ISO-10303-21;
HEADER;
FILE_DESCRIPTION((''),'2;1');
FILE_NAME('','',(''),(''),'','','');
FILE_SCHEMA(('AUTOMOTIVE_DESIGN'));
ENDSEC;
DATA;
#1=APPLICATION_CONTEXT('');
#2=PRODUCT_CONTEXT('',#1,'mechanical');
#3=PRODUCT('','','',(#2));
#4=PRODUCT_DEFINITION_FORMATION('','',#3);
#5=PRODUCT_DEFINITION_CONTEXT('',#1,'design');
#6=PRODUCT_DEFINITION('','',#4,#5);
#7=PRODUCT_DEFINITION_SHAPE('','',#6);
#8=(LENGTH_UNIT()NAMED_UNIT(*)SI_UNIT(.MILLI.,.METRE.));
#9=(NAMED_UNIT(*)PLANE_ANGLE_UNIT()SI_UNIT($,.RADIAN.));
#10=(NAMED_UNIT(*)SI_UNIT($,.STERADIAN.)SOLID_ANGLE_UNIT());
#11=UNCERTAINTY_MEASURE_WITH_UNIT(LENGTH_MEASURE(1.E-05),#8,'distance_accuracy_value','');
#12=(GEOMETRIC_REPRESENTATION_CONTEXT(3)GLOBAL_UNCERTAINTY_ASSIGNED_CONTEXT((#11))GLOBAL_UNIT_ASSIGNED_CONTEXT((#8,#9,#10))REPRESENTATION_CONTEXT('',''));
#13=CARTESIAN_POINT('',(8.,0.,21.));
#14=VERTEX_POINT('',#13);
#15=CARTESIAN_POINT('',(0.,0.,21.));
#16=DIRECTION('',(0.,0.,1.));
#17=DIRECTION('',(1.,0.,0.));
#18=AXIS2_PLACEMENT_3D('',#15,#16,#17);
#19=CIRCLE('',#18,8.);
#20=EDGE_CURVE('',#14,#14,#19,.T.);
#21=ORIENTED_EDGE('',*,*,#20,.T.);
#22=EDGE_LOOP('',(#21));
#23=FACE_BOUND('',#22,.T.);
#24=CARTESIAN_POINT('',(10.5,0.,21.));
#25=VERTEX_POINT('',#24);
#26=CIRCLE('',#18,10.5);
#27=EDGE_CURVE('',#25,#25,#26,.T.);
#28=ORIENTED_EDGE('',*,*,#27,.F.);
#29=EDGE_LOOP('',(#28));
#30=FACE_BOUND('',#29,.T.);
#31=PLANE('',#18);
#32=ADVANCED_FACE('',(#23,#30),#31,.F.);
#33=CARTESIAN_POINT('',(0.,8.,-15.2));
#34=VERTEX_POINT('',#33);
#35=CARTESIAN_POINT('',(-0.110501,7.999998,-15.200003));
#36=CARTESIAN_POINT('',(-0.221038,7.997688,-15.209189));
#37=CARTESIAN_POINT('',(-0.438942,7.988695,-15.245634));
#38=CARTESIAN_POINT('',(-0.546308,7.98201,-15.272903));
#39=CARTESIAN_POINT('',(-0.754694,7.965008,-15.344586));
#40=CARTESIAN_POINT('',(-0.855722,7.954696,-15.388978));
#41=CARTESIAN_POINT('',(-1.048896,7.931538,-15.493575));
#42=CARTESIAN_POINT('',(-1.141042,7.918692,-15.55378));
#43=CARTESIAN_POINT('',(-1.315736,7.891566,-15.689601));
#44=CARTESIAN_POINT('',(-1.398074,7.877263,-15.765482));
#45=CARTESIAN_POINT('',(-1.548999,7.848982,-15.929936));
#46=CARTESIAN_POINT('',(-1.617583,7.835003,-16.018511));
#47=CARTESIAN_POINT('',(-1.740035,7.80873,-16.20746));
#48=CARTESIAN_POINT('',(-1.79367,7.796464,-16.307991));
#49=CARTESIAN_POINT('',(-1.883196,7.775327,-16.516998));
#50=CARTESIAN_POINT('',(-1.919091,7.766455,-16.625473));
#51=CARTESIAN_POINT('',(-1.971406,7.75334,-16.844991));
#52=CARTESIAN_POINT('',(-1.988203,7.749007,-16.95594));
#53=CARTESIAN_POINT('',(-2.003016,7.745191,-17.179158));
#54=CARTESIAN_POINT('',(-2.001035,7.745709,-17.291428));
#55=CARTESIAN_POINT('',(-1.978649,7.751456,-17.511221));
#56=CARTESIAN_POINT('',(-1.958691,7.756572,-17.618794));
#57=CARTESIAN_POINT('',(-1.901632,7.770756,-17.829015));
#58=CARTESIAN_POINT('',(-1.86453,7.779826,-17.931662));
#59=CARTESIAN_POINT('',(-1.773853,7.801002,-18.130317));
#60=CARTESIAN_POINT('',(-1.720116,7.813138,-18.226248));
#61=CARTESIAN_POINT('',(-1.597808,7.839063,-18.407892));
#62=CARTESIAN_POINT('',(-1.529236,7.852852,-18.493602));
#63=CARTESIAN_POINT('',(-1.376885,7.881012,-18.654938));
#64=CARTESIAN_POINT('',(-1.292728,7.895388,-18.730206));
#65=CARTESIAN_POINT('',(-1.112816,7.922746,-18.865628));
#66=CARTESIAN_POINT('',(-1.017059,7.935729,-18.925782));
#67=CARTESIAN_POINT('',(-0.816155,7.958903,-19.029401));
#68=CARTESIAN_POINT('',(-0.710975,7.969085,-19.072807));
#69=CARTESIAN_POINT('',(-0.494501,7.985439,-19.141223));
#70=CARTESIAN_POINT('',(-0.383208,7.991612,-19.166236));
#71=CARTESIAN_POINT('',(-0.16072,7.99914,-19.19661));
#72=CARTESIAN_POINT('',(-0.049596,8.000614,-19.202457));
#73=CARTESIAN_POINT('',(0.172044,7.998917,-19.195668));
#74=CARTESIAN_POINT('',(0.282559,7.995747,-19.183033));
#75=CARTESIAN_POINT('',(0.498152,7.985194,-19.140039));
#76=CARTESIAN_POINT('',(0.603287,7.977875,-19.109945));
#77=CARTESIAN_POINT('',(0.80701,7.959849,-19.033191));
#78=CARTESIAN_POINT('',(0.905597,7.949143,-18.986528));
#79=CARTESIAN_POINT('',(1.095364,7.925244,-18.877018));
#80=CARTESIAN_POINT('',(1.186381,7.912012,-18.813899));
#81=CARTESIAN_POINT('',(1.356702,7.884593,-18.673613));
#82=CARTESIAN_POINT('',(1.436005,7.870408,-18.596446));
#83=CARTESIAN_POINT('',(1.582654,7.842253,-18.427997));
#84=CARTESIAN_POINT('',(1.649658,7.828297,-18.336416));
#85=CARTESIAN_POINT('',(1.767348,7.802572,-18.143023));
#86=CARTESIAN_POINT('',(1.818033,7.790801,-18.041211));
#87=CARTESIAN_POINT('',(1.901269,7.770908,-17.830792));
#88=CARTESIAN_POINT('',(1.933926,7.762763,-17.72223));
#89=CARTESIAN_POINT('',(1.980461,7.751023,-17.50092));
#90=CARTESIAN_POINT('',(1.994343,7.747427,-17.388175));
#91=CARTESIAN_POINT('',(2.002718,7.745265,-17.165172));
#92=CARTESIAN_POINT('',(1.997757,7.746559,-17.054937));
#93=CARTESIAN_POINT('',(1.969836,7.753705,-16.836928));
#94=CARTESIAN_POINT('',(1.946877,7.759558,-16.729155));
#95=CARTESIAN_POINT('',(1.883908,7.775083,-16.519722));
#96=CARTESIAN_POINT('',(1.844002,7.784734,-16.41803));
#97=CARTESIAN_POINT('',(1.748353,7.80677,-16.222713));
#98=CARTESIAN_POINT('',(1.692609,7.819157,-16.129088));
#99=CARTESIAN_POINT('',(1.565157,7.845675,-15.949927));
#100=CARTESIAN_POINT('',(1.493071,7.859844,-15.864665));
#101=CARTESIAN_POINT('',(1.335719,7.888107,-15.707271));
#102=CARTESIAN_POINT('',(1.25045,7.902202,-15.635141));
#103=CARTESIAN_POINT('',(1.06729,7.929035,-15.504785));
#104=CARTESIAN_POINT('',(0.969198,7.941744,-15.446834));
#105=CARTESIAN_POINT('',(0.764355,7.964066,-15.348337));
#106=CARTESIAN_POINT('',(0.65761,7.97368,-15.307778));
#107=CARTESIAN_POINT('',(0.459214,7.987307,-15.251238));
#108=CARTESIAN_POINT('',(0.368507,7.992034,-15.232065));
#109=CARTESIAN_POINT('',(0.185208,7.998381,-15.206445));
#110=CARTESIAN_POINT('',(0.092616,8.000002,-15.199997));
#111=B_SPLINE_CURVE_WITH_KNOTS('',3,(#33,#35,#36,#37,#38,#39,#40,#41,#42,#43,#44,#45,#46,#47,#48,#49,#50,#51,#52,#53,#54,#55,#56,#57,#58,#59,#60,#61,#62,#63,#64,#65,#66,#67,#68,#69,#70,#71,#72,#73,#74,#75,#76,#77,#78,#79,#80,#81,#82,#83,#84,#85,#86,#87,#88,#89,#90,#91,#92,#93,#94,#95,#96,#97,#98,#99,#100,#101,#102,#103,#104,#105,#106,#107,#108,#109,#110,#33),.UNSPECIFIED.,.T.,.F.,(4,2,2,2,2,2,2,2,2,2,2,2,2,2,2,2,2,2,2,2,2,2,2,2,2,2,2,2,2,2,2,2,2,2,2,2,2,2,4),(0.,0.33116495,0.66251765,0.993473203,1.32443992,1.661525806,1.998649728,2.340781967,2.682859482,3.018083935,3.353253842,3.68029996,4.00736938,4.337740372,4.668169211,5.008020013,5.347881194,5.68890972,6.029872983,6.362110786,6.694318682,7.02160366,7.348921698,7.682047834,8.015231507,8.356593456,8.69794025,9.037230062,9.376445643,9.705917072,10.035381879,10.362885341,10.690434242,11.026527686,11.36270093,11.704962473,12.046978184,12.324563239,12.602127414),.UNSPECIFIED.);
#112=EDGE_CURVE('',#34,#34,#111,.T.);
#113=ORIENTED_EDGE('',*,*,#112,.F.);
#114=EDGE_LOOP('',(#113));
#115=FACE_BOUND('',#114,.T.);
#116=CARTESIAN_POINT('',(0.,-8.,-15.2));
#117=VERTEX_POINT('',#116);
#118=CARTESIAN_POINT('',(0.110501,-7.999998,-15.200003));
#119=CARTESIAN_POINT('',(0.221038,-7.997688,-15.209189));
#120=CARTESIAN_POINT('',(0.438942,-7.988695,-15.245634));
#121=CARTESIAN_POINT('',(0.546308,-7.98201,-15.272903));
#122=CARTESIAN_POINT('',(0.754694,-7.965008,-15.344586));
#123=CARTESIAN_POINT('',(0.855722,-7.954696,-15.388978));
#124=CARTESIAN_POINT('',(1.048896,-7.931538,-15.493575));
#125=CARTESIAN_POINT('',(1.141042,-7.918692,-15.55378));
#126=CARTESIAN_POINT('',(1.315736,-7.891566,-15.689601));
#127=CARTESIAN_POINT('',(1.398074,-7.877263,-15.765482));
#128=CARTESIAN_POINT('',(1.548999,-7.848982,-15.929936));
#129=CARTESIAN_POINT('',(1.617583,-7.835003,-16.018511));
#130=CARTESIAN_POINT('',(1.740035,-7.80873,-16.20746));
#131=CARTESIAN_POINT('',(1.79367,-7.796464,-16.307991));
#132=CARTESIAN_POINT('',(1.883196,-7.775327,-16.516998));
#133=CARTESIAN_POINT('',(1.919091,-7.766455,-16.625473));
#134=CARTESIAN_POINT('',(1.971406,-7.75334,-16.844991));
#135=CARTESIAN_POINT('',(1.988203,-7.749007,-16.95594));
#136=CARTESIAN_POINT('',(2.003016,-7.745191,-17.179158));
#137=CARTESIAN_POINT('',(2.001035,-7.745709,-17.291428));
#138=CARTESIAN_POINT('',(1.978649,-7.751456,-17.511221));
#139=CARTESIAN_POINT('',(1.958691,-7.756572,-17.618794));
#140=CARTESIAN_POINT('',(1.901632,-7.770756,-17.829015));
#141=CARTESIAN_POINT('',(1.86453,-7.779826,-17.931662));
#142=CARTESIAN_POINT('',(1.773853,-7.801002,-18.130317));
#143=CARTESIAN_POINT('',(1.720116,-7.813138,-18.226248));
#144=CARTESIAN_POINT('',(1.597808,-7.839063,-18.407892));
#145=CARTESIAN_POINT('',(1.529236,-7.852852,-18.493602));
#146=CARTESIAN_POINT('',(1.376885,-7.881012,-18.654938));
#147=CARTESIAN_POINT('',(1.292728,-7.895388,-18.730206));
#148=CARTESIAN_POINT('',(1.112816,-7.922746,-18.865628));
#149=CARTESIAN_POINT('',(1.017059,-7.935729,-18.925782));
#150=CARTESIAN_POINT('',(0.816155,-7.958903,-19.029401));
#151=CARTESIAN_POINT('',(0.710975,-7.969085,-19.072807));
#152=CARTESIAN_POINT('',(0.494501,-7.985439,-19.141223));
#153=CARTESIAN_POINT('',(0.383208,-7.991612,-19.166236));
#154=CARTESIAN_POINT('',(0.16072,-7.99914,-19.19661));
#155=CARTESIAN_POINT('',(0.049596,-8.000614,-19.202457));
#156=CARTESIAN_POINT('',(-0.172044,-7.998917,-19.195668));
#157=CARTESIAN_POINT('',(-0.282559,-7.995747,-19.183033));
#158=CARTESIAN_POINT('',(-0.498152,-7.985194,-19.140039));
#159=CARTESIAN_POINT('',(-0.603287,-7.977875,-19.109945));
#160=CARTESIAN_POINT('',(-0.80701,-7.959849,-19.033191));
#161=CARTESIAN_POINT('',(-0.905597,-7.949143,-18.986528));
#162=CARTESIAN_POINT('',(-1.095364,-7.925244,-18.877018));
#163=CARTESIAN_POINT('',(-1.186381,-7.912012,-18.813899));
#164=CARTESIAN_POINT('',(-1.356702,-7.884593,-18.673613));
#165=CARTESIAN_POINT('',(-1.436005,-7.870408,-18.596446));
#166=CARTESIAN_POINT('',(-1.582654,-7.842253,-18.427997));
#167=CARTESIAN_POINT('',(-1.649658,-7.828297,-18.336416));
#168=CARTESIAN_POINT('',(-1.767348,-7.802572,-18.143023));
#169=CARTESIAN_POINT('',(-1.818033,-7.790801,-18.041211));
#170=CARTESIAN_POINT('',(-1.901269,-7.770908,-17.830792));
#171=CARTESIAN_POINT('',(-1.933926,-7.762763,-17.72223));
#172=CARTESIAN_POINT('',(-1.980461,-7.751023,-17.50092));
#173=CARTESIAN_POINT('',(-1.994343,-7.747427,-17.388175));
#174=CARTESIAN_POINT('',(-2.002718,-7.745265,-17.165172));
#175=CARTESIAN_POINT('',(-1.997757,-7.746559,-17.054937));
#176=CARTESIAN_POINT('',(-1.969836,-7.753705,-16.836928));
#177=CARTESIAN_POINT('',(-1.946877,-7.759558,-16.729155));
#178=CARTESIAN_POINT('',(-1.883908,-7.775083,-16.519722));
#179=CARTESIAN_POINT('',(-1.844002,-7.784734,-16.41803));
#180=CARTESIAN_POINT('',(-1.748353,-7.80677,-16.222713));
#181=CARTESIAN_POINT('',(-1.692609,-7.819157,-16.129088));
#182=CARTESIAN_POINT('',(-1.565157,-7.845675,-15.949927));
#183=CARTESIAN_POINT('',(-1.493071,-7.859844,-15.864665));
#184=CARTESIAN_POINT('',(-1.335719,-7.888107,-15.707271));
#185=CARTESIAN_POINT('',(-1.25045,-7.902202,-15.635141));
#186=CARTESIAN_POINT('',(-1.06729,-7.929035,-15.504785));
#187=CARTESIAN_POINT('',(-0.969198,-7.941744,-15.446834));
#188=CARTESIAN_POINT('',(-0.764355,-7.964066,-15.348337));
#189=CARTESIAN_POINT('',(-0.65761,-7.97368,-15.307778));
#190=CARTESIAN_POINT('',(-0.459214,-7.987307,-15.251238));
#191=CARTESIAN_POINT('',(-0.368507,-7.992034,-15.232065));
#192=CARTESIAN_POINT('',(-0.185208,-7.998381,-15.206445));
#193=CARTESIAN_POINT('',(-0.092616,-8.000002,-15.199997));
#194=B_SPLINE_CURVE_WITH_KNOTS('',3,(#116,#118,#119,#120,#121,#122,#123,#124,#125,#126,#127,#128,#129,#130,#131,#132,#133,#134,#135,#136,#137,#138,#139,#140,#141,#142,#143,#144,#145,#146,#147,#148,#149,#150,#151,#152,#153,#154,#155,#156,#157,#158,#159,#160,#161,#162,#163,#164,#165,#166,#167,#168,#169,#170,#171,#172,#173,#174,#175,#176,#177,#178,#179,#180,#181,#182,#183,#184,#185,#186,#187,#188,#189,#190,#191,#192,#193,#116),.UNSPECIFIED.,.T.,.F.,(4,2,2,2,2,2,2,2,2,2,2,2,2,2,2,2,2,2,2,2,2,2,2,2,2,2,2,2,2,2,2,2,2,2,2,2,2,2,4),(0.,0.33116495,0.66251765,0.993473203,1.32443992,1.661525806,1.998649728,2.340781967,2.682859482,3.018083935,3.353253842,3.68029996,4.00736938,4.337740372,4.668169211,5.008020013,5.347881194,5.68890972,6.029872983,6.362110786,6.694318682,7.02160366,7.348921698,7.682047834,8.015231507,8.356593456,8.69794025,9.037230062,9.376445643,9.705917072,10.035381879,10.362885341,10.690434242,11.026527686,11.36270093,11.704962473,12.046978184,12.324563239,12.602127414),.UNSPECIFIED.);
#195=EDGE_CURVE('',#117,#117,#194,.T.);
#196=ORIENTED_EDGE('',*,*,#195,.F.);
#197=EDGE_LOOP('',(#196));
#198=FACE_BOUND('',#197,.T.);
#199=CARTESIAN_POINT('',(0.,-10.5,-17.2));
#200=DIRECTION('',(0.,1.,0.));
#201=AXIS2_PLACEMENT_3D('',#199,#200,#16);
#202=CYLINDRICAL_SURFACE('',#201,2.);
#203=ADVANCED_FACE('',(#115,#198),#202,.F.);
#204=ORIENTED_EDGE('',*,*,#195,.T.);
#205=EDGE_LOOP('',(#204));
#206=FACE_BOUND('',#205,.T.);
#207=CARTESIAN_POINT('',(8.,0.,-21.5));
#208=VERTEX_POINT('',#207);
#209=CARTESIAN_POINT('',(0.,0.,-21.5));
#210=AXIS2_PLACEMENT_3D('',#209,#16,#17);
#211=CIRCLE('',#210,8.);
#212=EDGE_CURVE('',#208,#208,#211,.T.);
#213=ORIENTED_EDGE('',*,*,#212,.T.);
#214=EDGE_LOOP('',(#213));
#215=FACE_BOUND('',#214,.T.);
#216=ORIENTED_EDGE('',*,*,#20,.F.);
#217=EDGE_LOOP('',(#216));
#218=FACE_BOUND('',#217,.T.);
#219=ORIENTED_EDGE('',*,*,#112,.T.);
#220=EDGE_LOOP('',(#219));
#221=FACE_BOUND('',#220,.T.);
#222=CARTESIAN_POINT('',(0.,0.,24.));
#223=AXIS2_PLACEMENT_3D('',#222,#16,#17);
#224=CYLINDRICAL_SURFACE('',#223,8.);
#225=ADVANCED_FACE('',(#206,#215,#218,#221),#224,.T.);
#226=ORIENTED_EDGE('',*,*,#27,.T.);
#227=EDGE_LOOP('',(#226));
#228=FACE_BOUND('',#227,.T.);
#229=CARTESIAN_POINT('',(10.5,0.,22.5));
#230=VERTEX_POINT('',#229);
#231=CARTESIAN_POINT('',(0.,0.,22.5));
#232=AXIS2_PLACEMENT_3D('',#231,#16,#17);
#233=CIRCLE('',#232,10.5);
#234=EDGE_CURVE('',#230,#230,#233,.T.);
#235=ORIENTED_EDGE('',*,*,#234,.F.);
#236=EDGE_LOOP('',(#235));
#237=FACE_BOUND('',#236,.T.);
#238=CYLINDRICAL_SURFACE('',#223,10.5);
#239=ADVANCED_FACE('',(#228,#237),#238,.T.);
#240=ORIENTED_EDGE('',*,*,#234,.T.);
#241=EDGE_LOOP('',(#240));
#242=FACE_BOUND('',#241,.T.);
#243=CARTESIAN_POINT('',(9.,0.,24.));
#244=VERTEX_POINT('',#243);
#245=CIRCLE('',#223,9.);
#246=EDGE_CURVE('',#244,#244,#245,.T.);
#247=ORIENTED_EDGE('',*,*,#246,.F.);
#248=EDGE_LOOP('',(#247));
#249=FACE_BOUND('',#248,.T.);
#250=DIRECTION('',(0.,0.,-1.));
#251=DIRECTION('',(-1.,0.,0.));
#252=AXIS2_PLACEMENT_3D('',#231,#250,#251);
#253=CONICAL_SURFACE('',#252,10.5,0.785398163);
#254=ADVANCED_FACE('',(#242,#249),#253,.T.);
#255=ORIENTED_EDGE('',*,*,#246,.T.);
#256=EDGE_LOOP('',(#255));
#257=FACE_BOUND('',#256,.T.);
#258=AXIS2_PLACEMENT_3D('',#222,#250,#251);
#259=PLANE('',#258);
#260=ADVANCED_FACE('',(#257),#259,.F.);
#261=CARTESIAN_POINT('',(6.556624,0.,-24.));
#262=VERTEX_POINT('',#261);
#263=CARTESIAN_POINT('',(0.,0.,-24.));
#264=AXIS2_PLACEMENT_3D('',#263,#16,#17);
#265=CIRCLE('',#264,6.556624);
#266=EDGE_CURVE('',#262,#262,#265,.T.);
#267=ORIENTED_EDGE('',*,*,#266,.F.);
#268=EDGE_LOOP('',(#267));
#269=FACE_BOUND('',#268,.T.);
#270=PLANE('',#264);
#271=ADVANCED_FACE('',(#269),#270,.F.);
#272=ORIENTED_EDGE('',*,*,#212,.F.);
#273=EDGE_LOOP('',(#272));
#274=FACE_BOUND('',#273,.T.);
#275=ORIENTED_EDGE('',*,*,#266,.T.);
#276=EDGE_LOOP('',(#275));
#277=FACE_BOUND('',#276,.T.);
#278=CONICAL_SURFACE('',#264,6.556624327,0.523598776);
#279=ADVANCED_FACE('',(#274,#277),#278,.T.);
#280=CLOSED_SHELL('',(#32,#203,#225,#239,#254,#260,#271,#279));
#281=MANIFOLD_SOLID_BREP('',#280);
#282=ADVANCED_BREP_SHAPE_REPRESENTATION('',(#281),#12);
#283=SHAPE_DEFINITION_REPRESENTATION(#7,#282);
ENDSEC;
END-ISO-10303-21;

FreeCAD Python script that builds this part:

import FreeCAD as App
import Part
import Sketcher
Q = App.Units.Quantity


def add_polygon(sketch, points):
    """Adds a closed chain of lines whose ends are joined by coincident constraints."""
    first, n = sketch.GeometryCount, len(points)
    for a, b in zip(points, points[1:] + points[:1]):
        sketch.addGeometry(Part.LineSegment(App.Vector(*a, 0), App.Vector(*b, 0)), False)
    for i in range(n):
        sketch.addConstraint(Sketcher.Constraint("Coincident", first + i, 2, first + (i + 1) % n, 1))

doc = App.newDocument("Part")
body = doc.addObject("PartDesign::Body", "Body")

# Sketch on XZ plane
sketch1 = body.newObject("Sketcher::SketchObject", "Sketch")
sketch1.AttachmentSupport = (doc.getObject("XZ_Plane"), [""])
sketch1.MapMode = "FlatFace"
add_polygon(sketch1, [(0, 24), (9, 24), (10.5, 22.5), (10.5, 21), (8, 21), (8, -21.5), (6.6, -24), (0, -24)])  # lines 0-7
sketch1.addConstraint([
    Sketcher.Constraint("Horizontal", 0),
    Sketcher.Constraint("Vertical", 2),
    Sketcher.Constraint("Horizontal", 3),
    Sketcher.Constraint("Vertical", 4),
    Sketcher.Constraint("Horizontal", 6),
    Sketcher.Constraint("Vertical", 7),
    Sketcher.Constraint("Symmetric", 6, 2, 7, 2, -1, 1),
    Sketcher.Constraint("DistanceX", 0, 1, 0, 2, Q("9 mm")),
    Sketcher.Constraint("DistanceY", 7, 1, 7, 2, Q("48 mm")),
    Sketcher.Constraint("Angle", 1, Q("-45 deg")),
    Sketcher.Constraint("Angle", 5, Q("-120 deg")),
    Sketcher.Constraint("DistanceX", 3, 2, 3, 1, Q("2.5 mm")),
    Sketcher.Constraint("DistanceY", 2, 2, 2, 1, Q("1.5 mm")),
    Sketcher.Constraint("DistanceY", 4, 2, 4, 1, Q("42.5 mm")),
    Sketcher.Constraint("DistanceY", -1, 1, 2, 2, Q("21 mm")),
])
revolution = body.newObject("PartDesign::Revolution", "Revolution")
revolution.Profile = sketch1
revolution.ReferenceAxis = (sketch1, ["V_Axis"])
revolution.Angle = 360

# Sketch on XZ plane
sketch2 = body.newObject("Sketcher::SketchObject", "Sketch001")
sketch2.AttachmentSupport = (doc.getObject("XZ_Plane"), [""])
sketch2.MapMode = "FlatFace"
sketch2.addGeometry(Part.Circle(App.Vector(0, -17.2, 0), App.Vector(0, 0, 1), 2), False)
sketch2.addConstraint([
    Sketcher.Constraint("PointOnObject", 0, 3, -2),
    Sketcher.Constraint("Diameter", 0, Q("4 mm")),
    Sketcher.Constraint("DistanceY", 0, 3, -1, 1, Q("17.2 mm")),
])
pocket1 = body.newObject("PartDesign::Pocket", "Pocket")
pocket1.Profile = sketch2
pocket1.Type = "ThroughAll"
pocket1.Midplane = True

doc.recompute()
